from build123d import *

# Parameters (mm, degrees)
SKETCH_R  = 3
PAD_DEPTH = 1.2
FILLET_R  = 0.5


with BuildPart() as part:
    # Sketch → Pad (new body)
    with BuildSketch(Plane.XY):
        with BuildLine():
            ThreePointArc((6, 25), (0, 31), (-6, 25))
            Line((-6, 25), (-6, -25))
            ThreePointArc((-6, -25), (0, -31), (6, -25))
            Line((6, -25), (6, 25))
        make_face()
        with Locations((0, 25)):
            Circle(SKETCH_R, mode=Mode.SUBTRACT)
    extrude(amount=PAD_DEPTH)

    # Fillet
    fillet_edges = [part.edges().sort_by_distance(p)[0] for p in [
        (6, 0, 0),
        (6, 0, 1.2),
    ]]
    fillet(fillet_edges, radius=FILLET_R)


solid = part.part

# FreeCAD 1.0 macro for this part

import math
import FreeCAD as App
import Part
import Sketcher
Q = App.Units.Quantity


def edges_at(feature, points):
    """Names of the edges that pass closest to the given points."""
    edges = feature.Shape.Edges
    near = lambda p: min(range(len(edges)), key=lambda i: edges[i].distToShape(Part.Vertex(*p))[0])
    return sorted({f"Edge{near(p) + 1}" for p in points})

doc = App.newDocument("Part")
params = doc.addObject("Spreadsheet::Sheet", "Params")
for row, (alias, value) in enumerate([
    ("sketch1_diameter", "6 mm"),
    ("sketch1_radius", "6 mm"),
    ("sketch1_height", "50 mm"),
    ("pad1_length", "1.2 mm"),
    ("fillet_radius", "0.5 mm"),
], start=1):
    params.set(f"A{row}", alias)
    params.set(f"B{row}", "=" + value)
    params.setAlias(f"B{row}", alias)

body = doc.addObject("PartDesign::Body", "Body")

# Sketch on XY plane
sketch1 = body.newObject("Sketcher::SketchObject", "Sketch")
sketch1.AttachmentSupport = (doc.getObject("XY_Plane"), [""])
sketch1.MapMode = "FlatFace"
sketch1.addGeometry([
    Part.ArcOfCircle(Part.Circle(App.Vector(0, 25, 0), App.Vector(0, 0, 1), 6), math.radians(0), math.radians(180)),  # 0
    Part.LineSegment(App.Vector(-6, 25, 0), App.Vector(-6, -25, 0)),  # 1
    Part.ArcOfCircle(Part.Circle(App.Vector(0, -25, 0), App.Vector(0, 0, 1), 6), math.radians(180), math.radians(360)),  # 2
    Part.LineSegment(App.Vector(6, -25, 0), App.Vector(6, 25, 0)),  # 3
    Part.Circle(App.Vector(0, 25, 0), App.Vector(0, 0, 1), 3),  # 4
], False)
sketch1.addConstraint([
    Sketcher.Constraint("Tangent", 0, 2, 1, 1),
    Sketcher.Constraint("Tangent", 1, 2, 2, 1),
    Sketcher.Constraint("Tangent", 2, 2, 3, 1),
    Sketcher.Constraint("Tangent", 3, 2, 0, 1),
    Sketcher.Constraint("Vertical", 1),
    Sketcher.Constraint("Vertical", 3),
    Sketcher.Constraint("Coincident", 4, 3, 0, 3),
    Sketcher.Constraint("Symmetric", 0, 3, 2, 3, -1, 1),
    Sketcher.Constraint("Diameter", 4, Q("6 mm")),
    Sketcher.Constraint("Radius", 0, Q("6 mm")),
    Sketcher.Constraint("DistanceY", 1, 2, 1, 1, Q("50 mm")),
])
sketch1.setExpression("Constraints[8]", "Params.sketch1_diameter")
sketch1.setExpression("Constraints[9]", "Params.sketch1_radius")
sketch1.setExpression("Constraints[10]", "Params.sketch1_height")
pad1 = body.newObject("PartDesign::Pad", "Pad")
pad1.Profile = sketch1
pad1.setExpression("Length", "Params.pad1_length")
doc.recompute()

fillet = body.newObject("PartDesign::Fillet", "Fillet")
fillet.Base = (pad1, edges_at(pad1, [(6, 0, 0), (6, 0, 1.2)]))
fillet.setExpression("Radius", "Params.fillet_radius")

doc.recompute()
